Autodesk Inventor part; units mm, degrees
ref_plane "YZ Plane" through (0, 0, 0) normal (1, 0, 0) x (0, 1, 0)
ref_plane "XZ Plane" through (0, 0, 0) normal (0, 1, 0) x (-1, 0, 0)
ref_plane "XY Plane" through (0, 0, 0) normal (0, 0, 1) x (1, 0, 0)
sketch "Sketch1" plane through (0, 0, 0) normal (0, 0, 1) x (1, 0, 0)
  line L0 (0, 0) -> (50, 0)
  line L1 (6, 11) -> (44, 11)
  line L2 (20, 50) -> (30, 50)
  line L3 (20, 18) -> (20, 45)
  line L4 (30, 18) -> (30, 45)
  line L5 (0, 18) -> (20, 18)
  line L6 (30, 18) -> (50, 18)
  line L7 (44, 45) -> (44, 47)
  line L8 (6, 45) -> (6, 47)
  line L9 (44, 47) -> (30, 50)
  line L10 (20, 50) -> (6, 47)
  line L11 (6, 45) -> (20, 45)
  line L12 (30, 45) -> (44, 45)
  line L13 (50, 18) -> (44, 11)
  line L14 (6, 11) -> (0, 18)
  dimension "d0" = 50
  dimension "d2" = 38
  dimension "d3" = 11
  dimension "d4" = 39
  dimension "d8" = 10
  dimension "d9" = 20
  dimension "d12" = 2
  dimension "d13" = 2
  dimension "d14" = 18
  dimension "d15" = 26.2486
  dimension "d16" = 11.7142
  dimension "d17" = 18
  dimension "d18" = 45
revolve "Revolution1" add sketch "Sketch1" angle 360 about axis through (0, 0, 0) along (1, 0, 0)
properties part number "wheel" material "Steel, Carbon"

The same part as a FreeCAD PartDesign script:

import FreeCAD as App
import Part
import Sketcher


def add_polygon(sketch, points):
    """Adds a closed chain of lines whose ends are joined by coincident constraints."""
    first, n = sketch.GeometryCount, len(points)
    for a, b in zip(points, points[1:] + points[:1]):
        sketch.addGeometry(Part.LineSegment(App.Vector(*a, 0), App.Vector(*b, 0)), False)
    for i in range(n):
        sketch.addConstraint(Sketcher.Constraint("Coincident", first + i, 2, first + (i + 1) % n, 1))

doc = App.newDocument("Part")
body = doc.addObject("PartDesign::Body", "Body")

sketch1 = doc.addObject("Sketcher::SketchObject", "Sketch")
body.addObject(sketch1)
sketch1.AttachmentSupport = (doc.XY_Plane, [""])
sketch1.MapMode = "FlatFace"
add_polygon(sketch1, [(0, 18), (6, 11), (44, 11), (50, 18), (30, 18), (30, 45), (44, 45), (44, 47), (30, 50), (20, 50), (6, 47), (6, 45), (20, 45), (20, 18)])
sketch1.addConstraint(Sketcher.Constraint("Horizontal", 1))
sketch1.addConstraint(Sketcher.Constraint("Horizontal", 3))
sketch1.addConstraint(Sketcher.Constraint("Vertical", 4))
sketch1.addConstraint(Sketcher.Constraint("Horizontal", 5))
sketch1.addConstraint(Sketcher.Constraint("Vertical", 6))
sketch1.addConstraint(Sketcher.Constraint("Horizontal", 8))
sketch1.addConstraint(Sketcher.Constraint("Vertical", 10))
sketch1.addConstraint(Sketcher.Constraint("Horizontal", 11))
sketch1.addConstraint(Sketcher.Constraint("Vertical", 12))
sketch1.addConstraint(Sketcher.Constraint("Horizontal", 13))
sketch1.addConstraint(Sketcher.Constraint("PointOnObject", 13, 2, -2))
sketch1.addConstraint(Sketcher.Constraint("Horizontal", 6, 2, 9, 2))
sketch1.addConstraint(Sketcher.Constraint("Horizontal", 5, 2, 10, 2))
sketch1.addConstraint(Sketcher.Constraint("Horizontal", 3, 2, 12, 2))
sketch1.addConstraint(Sketcher.Constraint("Vertical", 1, 2, 5, 2))
sketch1.addConstraint(Sketcher.Constraint("Vertical", 4, 2, 7, 2))
sketch1.addConstraint(Sketcher.Constraint("Vertical", 0, 2, 9, 2))
sketch1.addConstraint(Sketcher.Constraint("Vertical", 8, 2, 11, 2))
sketch1.addConstraint(Sketcher.Constraint("Equal", 5, 11))
sketch1.addConstraint(Sketcher.Constraint("Equal", 3, 13))
sketch1.addConstraint(Sketcher.Constraint("DistanceX", 1, 1, 1, 2, 38.0))
sketch1.addConstraint(Sketcher.Constraint("DistanceX", 3, 2, 3, 1, 20.0))
sketch1.addConstraint(Sketcher.Constraint("DistanceX", 8, 2, 8, 1, 10.0))
sketch1.addConstraint(Sketcher.Constraint("DistanceY", 6, 1, 6, 2, 2.0))
sketch1.addConstraint(Sketcher.Constraint("DistanceY", -1, 1, 0, 2, 11.0))
sketch1.addConstraint(Sketcher.Constraint("DistanceY", -1, 1, 2, 2, 18.0))
sketch1.addConstraint(Sketcher.Constraint("DistanceY", -1, 1, 4, 2, 45.0))
sketch1.addConstraint(Sketcher.Constraint("DistanceY", -1, 1, 7, 2, 50.0))
revolution = doc.addObject("PartDesign::Revolution", "Revolution")
body.addObject(revolution)
revolution.Profile = sketch1
revolution.ReferenceAxis = (sketch1, ["H_Axis"])
revolution.Angle = 360

doc.recompute()
